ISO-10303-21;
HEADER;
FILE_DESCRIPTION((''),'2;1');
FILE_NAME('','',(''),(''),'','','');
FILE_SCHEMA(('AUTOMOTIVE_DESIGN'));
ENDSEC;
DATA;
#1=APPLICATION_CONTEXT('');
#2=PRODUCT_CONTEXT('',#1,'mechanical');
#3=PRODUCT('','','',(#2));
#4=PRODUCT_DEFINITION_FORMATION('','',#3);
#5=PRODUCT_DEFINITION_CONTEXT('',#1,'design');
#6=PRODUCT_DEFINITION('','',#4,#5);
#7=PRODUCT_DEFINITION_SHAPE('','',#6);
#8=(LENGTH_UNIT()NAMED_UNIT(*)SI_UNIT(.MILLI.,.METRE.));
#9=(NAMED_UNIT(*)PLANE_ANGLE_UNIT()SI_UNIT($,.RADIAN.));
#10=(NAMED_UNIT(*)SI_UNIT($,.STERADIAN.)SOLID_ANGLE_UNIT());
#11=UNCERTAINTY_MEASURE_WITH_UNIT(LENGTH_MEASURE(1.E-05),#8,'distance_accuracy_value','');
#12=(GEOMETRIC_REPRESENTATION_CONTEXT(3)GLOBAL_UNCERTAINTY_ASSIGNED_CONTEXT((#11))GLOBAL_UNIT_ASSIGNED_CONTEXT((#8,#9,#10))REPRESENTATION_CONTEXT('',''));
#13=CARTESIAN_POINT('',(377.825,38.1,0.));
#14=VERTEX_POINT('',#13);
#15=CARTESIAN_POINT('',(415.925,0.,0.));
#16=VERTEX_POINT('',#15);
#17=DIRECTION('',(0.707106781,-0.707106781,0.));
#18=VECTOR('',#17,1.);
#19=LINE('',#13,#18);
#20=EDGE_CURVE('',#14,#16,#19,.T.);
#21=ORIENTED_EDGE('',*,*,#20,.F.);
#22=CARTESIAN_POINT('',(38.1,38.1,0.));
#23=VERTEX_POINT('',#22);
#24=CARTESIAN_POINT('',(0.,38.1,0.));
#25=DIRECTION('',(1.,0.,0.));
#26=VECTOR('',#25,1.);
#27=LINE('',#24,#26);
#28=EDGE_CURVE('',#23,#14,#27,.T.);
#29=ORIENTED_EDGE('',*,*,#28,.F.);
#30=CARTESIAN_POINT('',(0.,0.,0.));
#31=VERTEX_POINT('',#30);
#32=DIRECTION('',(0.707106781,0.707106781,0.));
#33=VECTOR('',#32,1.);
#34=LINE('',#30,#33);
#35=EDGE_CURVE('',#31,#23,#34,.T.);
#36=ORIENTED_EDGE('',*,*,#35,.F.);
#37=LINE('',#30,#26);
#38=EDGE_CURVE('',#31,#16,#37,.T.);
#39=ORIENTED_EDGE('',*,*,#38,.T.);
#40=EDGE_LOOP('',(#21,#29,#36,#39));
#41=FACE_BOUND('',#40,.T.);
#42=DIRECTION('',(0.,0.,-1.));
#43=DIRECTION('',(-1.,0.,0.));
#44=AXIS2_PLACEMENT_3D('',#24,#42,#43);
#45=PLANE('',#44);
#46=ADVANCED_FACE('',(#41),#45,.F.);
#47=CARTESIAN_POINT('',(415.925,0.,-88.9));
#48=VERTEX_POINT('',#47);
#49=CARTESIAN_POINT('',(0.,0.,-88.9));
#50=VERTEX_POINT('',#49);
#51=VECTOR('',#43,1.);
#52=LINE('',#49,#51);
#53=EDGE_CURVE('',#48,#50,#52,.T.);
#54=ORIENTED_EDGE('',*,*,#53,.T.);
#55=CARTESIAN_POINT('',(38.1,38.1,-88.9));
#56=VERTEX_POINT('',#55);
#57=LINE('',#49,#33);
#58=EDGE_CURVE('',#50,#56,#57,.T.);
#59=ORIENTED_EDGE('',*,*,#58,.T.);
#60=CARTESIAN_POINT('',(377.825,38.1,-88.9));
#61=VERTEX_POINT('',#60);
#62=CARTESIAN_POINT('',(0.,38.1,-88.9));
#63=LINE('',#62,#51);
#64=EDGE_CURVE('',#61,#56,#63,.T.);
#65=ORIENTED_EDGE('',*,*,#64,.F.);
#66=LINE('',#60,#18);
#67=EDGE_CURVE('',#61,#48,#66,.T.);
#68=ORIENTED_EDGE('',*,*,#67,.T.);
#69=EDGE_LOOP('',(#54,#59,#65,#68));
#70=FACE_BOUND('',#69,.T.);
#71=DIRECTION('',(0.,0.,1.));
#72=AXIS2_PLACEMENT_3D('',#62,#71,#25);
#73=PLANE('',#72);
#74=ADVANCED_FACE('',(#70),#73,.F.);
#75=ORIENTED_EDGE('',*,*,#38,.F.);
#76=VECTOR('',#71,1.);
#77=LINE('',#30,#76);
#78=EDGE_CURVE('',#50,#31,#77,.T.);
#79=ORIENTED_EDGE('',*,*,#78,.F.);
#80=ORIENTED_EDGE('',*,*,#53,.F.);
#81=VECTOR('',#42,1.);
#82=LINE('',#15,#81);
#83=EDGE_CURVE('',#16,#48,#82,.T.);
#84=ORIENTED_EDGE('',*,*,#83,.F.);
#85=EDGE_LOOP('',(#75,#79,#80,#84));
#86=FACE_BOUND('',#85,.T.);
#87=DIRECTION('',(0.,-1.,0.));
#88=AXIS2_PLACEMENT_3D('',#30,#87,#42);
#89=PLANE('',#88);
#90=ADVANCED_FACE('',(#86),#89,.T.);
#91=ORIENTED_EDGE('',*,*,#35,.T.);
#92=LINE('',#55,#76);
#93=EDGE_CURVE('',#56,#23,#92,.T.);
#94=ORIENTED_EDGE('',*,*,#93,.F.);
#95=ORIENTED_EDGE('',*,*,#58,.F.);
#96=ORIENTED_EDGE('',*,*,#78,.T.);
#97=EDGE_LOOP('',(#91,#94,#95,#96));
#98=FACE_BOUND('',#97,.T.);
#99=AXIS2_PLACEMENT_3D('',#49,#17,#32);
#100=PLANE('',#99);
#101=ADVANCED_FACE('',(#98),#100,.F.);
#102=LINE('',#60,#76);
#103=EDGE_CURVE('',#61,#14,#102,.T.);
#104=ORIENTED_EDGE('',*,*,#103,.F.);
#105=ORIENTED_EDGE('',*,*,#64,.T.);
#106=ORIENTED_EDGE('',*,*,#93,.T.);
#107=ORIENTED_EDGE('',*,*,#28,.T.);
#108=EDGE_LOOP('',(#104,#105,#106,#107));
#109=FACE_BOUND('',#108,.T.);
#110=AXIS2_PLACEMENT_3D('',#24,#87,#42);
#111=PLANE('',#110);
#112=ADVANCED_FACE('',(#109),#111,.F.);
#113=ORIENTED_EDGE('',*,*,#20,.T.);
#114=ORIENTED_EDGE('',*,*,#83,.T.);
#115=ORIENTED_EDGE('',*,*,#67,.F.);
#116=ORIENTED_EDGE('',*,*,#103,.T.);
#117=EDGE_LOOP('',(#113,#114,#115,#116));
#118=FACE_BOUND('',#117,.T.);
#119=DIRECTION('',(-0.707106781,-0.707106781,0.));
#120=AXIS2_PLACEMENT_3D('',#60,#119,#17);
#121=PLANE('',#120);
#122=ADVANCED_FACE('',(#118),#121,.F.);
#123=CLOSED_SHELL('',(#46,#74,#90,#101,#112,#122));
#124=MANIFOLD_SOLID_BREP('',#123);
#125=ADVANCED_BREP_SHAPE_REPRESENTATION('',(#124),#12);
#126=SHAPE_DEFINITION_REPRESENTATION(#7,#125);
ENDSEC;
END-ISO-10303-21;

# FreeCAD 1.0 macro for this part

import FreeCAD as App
import Part
import Sketcher
Q = App.Units.Quantity


def add_polygon(sketch, points):
    """Adds a closed chain of lines whose ends are joined by coincident constraints."""
    first, n = sketch.GeometryCount, len(points)
    for a, b in zip(points, points[1:] + points[:1]):
        sketch.addGeometry(Part.LineSegment(App.Vector(*a, 0), App.Vector(*b, 0)), False)
    for i in range(n):
        sketch.addConstraint(Sketcher.Constraint("Coincident", first + i, 2, first + (i + 1) % n, 1))

doc = App.newDocument("Part")
body = doc.addObject("PartDesign::Body", "Body")

sketch1 = body.newObject("Sketcher::SketchObject", "Sketch")
sketch1.AttachmentSupport = (doc.getObject("XZ_Plane"), [""])
sketch1.MapMode = "FlatFace"
add_polygon(sketch1, [(0, -89), (0, 0), (416, 0), (416, -89)])
sketch1.addConstraint(Sketcher.Constraint("Vertical", 0))
sketch1.addConstraint(Sketcher.Constraint("Horizontal", 1))
sketch1.addConstraint(Sketcher.Constraint("Vertical", 2))
sketch1.addConstraint(Sketcher.Constraint("Horizontal", 3))
sketch1.addConstraint(Sketcher.Constraint("Coincident", 0, 2, -1, 1))
sketch1.addConstraint(Sketcher.Constraint("DistanceY", 0, 1, 0, 2, Q("3.5 in")))
sketch1.addConstraint(Sketcher.Constraint("DistanceX", 1, 1, 1, 2, Q("16.375 in")))
pad1 = body.newObject("PartDesign::Pad", "Pad")
pad1.Profile = sketch1
pad1.Length = Q("1.5 in")
pad1.Reversed = True

sketch2 = body.newObject("Sketcher::SketchObject", "Sketch001")
sketch2.AttachmentSupport = (doc.getObject("XY_Plane"), [""])
sketch2.MapMode = "FlatFace"
add_polygon(sketch2, [(0, 0), (38, 38), (0, 38)])
add_polygon(sketch2, [(416, 0), (416, 38), (378, 38)])
sketch2.addConstraint(Sketcher.Constraint("Horizontal", 1))
sketch2.addConstraint(Sketcher.Constraint("Vertical", 2))
sketch2.addConstraint(Sketcher.Constraint("Vertical", 3))
sketch2.addConstraint(Sketcher.Constraint("Horizontal", 4))
sketch2.addConstraint(Sketcher.Constraint("Coincident", 2, 2, -1, 1))
sketch2.addConstraint(Sketcher.Constraint("PointOnObject", 5, 2, -1))
sketch2.addConstraint(Sketcher.Constraint("Perpendicular", 0, 5))
sketch2.addConstraint(Sketcher.Constraint("Horizontal", 1, 2, 3, 2))
sketch2.addConstraint(Sketcher.Constraint("Equal", 1, 4))
sketch2.addConstraint(Sketcher.Constraint("DistanceX", 1, 2, 1, 1, Q("1.5 in")))
sketch2.addConstraint(Sketcher.Constraint("DistanceX", -1, 1, 3, 2, Q("16.375 in")))
pocket1 = body.newObject("PartDesign::Pocket", "Pocket")
pocket1.Profile = sketch2
pocket1.Type = "ThroughAll"

doc.recompute()
